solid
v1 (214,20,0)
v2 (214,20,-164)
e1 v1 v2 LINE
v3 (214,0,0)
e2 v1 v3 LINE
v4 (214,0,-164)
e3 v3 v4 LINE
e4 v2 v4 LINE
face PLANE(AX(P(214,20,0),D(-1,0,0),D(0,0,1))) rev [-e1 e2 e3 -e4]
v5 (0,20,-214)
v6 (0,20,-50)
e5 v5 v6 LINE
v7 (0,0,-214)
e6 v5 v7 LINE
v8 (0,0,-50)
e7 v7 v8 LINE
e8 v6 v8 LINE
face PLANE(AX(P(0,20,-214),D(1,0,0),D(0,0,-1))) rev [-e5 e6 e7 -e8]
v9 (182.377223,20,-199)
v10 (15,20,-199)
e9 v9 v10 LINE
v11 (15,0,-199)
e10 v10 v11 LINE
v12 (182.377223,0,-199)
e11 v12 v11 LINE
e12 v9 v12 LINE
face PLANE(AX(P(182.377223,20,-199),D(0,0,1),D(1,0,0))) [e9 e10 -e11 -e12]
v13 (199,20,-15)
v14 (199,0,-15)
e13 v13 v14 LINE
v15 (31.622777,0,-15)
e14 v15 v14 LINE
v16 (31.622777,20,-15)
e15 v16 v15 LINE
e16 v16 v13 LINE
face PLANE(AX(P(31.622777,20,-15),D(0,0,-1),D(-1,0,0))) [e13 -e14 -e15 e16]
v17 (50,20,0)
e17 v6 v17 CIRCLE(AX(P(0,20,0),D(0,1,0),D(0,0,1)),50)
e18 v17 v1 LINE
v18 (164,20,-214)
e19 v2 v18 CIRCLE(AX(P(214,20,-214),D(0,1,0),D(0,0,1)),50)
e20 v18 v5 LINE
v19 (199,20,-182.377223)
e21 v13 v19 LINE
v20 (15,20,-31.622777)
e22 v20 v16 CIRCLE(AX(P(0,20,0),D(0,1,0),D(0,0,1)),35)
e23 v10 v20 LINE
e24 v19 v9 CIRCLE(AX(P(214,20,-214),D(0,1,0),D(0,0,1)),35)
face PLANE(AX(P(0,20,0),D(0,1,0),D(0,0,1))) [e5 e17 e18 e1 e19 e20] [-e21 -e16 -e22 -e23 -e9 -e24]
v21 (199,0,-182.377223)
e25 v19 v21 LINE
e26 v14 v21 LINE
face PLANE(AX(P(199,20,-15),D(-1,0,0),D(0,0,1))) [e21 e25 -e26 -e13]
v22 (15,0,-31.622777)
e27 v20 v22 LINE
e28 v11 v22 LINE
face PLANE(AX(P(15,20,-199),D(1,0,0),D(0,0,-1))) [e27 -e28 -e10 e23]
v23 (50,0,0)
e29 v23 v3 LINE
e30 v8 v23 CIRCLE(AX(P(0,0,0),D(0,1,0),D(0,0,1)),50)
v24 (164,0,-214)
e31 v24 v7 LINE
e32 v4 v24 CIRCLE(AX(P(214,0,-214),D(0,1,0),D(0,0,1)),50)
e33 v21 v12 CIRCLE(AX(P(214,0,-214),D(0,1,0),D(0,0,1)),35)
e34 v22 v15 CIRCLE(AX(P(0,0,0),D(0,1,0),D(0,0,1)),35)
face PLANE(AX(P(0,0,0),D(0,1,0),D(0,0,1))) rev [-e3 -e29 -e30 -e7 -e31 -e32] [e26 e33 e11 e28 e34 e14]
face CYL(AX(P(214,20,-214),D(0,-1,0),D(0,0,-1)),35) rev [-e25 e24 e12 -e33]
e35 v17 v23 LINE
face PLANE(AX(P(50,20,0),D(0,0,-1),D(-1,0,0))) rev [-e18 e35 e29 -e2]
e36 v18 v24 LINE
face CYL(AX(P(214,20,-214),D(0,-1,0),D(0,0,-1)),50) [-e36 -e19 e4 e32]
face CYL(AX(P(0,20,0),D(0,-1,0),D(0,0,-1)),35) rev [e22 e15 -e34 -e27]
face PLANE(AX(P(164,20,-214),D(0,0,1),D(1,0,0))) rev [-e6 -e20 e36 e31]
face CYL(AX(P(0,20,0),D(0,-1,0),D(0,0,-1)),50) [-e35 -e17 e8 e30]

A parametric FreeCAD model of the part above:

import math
import FreeCAD as App
import Part
import Sketcher

doc = App.newDocument("Part")
body = doc.addObject("PartDesign::Body", "Body")

# Sketch on XZ plane
sketch1 = body.newObject("Sketcher::SketchObject", "Sketch")
sketch1.AttachmentSupport = (doc.getObject("XZ_Plane"), [""])
sketch1.MapMode = "FlatFace"
sketch1.addGeometry(Part.LineSegment(App.Vector(0, -214, 0), App.Vector(0, -50, 0)), False)
sketch1.addGeometry(Part.ArcOfCircle(Part.Circle(App.Vector(0, 0, 0), App.Vector(0, 0, 1), 50), math.radians(0), math.radians(270)), False)
sketch1.addGeometry(Part.LineSegment(App.Vector(50, 0, 0), App.Vector(214, 0, 0)), False)
sketch1.addGeometry(Part.LineSegment(App.Vector(214, 0, 0), App.Vector(214, -164, 0)), False)
sketch1.addGeometry(Part.ArcOfCircle(Part.Circle(App.Vector(214, -214, 0), App.Vector(0, 0, 1), 50), math.radians(180), math.radians(450)), False)
sketch1.addGeometry(Part.LineSegment(App.Vector(164, -214, 0), App.Vector(0, -214, 0)), False)
sketch1.addGeometry(Part.LineSegment(App.Vector(15, -31.622777, 0), App.Vector(15, -199, 0)), False)
sketch1.addGeometry(Part.LineSegment(App.Vector(15, -199, 0), App.Vector(182.377223, -199, 0)), False)
sketch1.addGeometry(Part.ArcOfCircle(Part.Circle(App.Vector(214, -214, 0), App.Vector(0, 0, 1), 35), math.radians(154.623066), math.radians(475.376934)), False)
sketch1.addGeometry(Part.LineSegment(App.Vector(199, -182.377223, 0), App.Vector(199, -15, 0)), False)
sketch1.addGeometry(Part.LineSegment(App.Vector(199, -15, 0), App.Vector(31.622777, -15, 0)), False)
sketch1.addGeometry(Part.ArcOfCircle(Part.Circle(App.Vector(0, 0, 0), App.Vector(0, 0, 1), 35), math.radians(-25.376934), math.radians(295.376934)), False)
sketch1.addConstraint(Sketcher.Constraint("Coincident", 0, 2, 1, 2))
sketch1.addConstraint(Sketcher.Constraint("Coincident", 1, 1, 2, 1))
sketch1.addConstraint(Sketcher.Constraint("Coincident", 2, 2, 3, 1))
sketch1.addConstraint(Sketcher.Constraint("Coincident", 3, 2, 4, 2))
sketch1.addConstraint(Sketcher.Constraint("Coincident", 4, 1, 5, 1))
sketch1.addConstraint(Sketcher.Constraint("Coincident", 5, 2, 0, 1))
sketch1.addConstraint(Sketcher.Constraint("Coincident", 6, 2, 7, 1))
sketch1.addConstraint(Sketcher.Constraint("Coincident", 7, 2, 8, 1))
sketch1.addConstraint(Sketcher.Constraint("Coincident", 8, 2, 9, 1))
sketch1.addConstraint(Sketcher.Constraint("Coincident", 9, 2, 10, 1))
sketch1.addConstraint(Sketcher.Constraint("Coincident", 10, 2, 11, 1))
sketch1.addConstraint(Sketcher.Constraint("Coincident", 11, 2, 6, 1))
sketch1.addConstraint(Sketcher.Constraint("Vertical", 0))
sketch1.addConstraint(Sketcher.Constraint("Horizontal", 2))
sketch1.addConstraint(Sketcher.Constraint("Vertical", 3))
sketch1.addConstraint(Sketcher.Constraint("Horizontal", 5))
sketch1.addConstraint(Sketcher.Constraint("Vertical", 6))
sketch1.addConstraint(Sketcher.Constraint("Horizontal", 7))
sketch1.addConstraint(Sketcher.Constraint("Vertical", 9))
sketch1.addConstraint(Sketcher.Constraint("Horizontal", 10))
sketch1.addConstraint(Sketcher.Constraint("Coincident", 1, 3, -1, 1))
sketch1.addConstraint(Sketcher.Constraint("Coincident", 11, 3, -1, 1))
sketch1.addConstraint(Sketcher.Constraint("Coincident", 8, 3, 4, 3))
sketch1.addConstraint(Sketcher.Constraint("Equal", 1, 4))
sketch1.addConstraint(Sketcher.Constraint("Equal", 8, 11))
sketch1.addConstraint(Sketcher.Constraint("PointOnObject", 0, 2, -2))
sketch1.addConstraint(Sketcher.Constraint("PointOnObject", 1, 1, -1))
sketch1.addConstraint(Sketcher.Constraint("Horizontal", 8, 3, 4, 1))
sketch1.addConstraint(Sketcher.Constraint("Vertical", 8, 3, 2, 2))
sketch1.addConstraint(Sketcher.Constraint("Equal", 7, 10))
sketch1.addConstraint(Sketcher.Constraint("Equal", 5, 0))
sketch1.addConstraint(Sketcher.Constraint("Equal", 10, 6))
sketch1.addConstraint(Sketcher.Constraint("Equal", 6, 9))
sketch1.addConstraint(Sketcher.Constraint("Radius", 1, 50.0))
sketch1.addConstraint(Sketcher.Constraint("Radius", 8, 35.0))
sketch1.addConstraint(Sketcher.Constraint("DistanceX", 2, 1, 2, 2, 164.0))
sketch1.addConstraint(Sketcher.Constraint("DistanceX", -1, 1, 6, 2, 15.0))
pad1 = body.newObject("PartDesign::Pad", "Pad")
pad1.Profile = sketch1
pad1.Length = 20
pad1.Reversed = True

doc.recompute()
